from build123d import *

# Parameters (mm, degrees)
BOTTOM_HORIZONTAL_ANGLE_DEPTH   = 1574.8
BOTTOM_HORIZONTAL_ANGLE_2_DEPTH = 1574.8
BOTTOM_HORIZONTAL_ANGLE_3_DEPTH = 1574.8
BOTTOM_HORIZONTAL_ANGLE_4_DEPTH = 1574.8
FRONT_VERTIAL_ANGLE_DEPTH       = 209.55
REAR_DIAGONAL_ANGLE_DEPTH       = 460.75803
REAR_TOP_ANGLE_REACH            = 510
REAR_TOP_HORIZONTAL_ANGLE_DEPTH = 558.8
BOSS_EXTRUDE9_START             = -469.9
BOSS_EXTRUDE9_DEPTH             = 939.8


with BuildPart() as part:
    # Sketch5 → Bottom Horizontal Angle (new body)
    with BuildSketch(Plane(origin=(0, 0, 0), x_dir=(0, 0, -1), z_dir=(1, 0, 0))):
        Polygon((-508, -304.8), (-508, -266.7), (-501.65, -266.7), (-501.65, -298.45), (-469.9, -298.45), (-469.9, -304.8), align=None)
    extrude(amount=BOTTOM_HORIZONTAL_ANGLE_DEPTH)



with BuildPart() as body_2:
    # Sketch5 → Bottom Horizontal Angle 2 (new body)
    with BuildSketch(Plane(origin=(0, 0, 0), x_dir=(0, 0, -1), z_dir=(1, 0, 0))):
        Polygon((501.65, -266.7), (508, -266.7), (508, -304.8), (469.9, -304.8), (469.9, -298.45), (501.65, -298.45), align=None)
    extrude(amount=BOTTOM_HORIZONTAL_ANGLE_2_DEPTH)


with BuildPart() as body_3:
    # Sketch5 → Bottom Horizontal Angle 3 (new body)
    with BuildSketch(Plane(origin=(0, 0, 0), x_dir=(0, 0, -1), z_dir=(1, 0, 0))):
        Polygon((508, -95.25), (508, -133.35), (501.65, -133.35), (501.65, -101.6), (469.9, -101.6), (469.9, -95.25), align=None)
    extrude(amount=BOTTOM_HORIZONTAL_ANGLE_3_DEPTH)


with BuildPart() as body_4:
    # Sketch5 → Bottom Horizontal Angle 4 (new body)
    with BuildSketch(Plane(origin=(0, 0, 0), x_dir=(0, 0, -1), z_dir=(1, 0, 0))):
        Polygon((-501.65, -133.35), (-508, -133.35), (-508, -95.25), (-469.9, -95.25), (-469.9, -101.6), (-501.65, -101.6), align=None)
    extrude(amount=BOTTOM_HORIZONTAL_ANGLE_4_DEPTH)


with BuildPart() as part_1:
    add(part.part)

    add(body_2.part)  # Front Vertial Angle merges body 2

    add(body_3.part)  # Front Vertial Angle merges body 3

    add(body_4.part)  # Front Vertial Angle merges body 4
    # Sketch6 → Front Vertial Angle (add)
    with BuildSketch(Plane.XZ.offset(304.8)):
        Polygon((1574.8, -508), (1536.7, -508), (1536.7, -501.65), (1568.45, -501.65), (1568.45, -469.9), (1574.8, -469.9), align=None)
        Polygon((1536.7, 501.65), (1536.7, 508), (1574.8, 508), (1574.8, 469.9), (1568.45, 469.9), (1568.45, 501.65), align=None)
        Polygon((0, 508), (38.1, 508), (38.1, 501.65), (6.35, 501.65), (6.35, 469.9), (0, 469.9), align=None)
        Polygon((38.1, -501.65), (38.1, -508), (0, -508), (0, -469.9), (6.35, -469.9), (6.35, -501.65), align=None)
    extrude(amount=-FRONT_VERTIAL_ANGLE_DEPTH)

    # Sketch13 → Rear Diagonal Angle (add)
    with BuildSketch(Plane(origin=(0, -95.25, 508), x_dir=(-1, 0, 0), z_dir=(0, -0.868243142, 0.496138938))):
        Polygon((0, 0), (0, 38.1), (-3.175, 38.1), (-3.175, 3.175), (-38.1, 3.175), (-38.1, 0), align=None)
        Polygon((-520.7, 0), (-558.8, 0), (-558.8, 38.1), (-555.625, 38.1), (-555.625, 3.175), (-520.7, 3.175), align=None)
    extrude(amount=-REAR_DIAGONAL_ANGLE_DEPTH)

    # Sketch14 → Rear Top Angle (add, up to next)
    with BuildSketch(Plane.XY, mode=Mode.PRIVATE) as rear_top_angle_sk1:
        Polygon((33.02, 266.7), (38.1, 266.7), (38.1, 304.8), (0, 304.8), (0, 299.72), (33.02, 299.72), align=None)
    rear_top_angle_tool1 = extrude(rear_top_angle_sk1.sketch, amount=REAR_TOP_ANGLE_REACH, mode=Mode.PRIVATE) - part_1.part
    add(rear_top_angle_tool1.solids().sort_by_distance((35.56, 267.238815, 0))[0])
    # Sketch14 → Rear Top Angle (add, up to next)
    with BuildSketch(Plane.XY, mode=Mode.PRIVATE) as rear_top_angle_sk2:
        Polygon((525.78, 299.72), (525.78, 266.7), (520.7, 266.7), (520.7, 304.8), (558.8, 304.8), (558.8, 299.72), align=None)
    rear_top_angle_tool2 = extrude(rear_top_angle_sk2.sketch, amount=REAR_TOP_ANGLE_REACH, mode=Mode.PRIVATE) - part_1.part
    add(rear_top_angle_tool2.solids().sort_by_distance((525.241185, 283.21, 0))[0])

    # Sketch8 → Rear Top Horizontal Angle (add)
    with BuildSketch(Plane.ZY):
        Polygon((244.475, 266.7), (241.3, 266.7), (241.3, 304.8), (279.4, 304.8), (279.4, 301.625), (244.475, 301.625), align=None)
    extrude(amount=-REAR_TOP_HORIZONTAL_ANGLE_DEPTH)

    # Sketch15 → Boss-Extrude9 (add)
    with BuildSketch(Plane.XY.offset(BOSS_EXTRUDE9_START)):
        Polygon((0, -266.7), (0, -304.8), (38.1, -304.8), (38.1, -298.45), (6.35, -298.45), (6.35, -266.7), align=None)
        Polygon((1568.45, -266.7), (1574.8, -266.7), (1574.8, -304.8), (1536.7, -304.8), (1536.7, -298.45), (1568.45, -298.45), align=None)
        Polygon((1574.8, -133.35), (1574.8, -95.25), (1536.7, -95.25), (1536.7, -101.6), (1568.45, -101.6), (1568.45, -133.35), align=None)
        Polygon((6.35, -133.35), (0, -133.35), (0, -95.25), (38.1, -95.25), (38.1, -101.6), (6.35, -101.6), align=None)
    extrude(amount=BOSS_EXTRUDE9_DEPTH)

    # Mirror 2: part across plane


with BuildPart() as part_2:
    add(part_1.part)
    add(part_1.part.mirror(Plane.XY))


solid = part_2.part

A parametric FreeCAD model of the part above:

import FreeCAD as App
import Part
import Sketcher
Q = App.Units.Quantity


def add_polygon(sketch, points):
    """Adds a closed chain of lines whose ends are joined by coincident constraints."""
    first, n = sketch.GeometryCount, len(points)
    for a, b in zip(points, points[1:] + points[:1]):
        sketch.addGeometry(Part.LineSegment(App.Vector(*a, 0), App.Vector(*b, 0)), False)
    for i in range(n):
        sketch.addConstraint(Sketcher.Constraint("Coincident", first + i, 2, first + (i + 1) % n, 1))

doc = App.newDocument("Part")
body = doc.addObject("PartDesign::Body", "Body")

# Sketch on YZ plane
sketch1 = body.newObject("Sketcher::SketchObject", "Sketch")
sketch1.AttachmentSupport = (doc.getObject("YZ_Plane"), [""])
sketch1.MapMode = "FlatFace"
add_polygon(sketch1, [(-267, 508), (-305, 508), (-305, 470), (-298, 470), (-298, 502), (-267, 502)])  # lines 0-5
sketch1.addConstraint([
    Sketcher.Constraint("Horizontal", 0),
    Sketcher.Constraint("Vertical", 1),
    Sketcher.Constraint("Horizontal", 2),
    Sketcher.Constraint("Vertical", 3),
    Sketcher.Constraint("Horizontal", 4),
    Sketcher.Constraint("Vertical", 5),
    Sketcher.Constraint("Equal", 0, 1),
    Sketcher.Constraint("Equal", 4, 3),
    Sketcher.Constraint("DistanceX", 0, 2, 0, 1, Q("1.5 in")),
    Sketcher.Constraint("DistanceX", 0, 2, -1, 1, Q("12 in")),
    Sketcher.Constraint("DistanceY", -1, 1, 0, 2, Q("20 in")),
    Sketcher.Constraint("DistanceX", 2, 1, 2, 2, Q("0.25 in")),
])
pad1 = body.newObject("PartDesign::Pad", "Pad")
pad1.Profile = sketch1
pad1.Length = Q("62 in")
body2 = doc.addObject("PartDesign::Body", "Body001")

# Sketch on YZ plane
sketch2 = body2.newObject("Sketcher::SketchObject", "Sketch001")
sketch2.AttachmentSupport = (doc.getObject("YZ_Plane001"), [""])
sketch2.MapMode = "FlatFace"
add_polygon(sketch2, [(-267, -508), (-267, -502), (-298, -502), (-298, -470), (-305, -470), (-305, -508)])  # lines 0-5
sketch2.addConstraint([
    Sketcher.Constraint("Vertical", 0),
    Sketcher.Constraint("Horizontal", 1),
    Sketcher.Constraint("Vertical", 2),
    Sketcher.Constraint("Horizontal", 3),
    Sketcher.Constraint("Vertical", 4),
    Sketcher.Constraint("Horizontal", 5),
    Sketcher.Constraint("Equal", 3, 0),
    Sketcher.Constraint("Equal", 1, 2),
    Sketcher.Constraint("DistanceX", 5, 1, 5, 2, Q("1.5 in")),
    Sketcher.Constraint("DistanceX", 3, 2, -1, 1, Q("12 in")),
    Sketcher.Constraint("DistanceY", 4, 2, -1, 1, Q("20 in")),
    Sketcher.Constraint("DistanceX", 1, 2, 1, 1, Q("1.25 in")),
])
pad2 = body2.newObject("PartDesign::Pad", "Pad001")
pad2.Profile = sketch2
pad2.Length = Q("62 in")
body3 = doc.addObject("PartDesign::Body", "Body002")

# Sketch on YZ plane
sketch3 = body3.newObject("Sketcher::SketchObject", "Sketch002")
sketch3.AttachmentSupport = (doc.getObject("YZ_Plane002"), [""])
sketch3.MapMode = "FlatFace"
add_polygon(sketch3, [(-133, -508), (-95, -508), (-95, -470), (-102, -470), (-102, -502), (-133, -502)])  # lines 0-5
sketch3.addConstraint([
    Sketcher.Constraint("Horizontal", 0),
    Sketcher.Constraint("Vertical", 1),
    Sketcher.Constraint("Horizontal", 2),
    Sketcher.Constraint("Vertical", 3),
    Sketcher.Constraint("Horizontal", 4),
    Sketcher.Constraint("Vertical", 5),
    Sketcher.Constraint("Equal", 0, 1),
    Sketcher.Constraint("Equal", 4, 3),
    Sketcher.Constraint("DistanceX", 0, 1, 0, 2, Q("1.5 in")),
    Sketcher.Constraint("DistanceY", 0, 2, -1, 1, Q("20 in")),
    Sketcher.Constraint("DistanceX", 2, 2, -1, 1, Q("4 in")),
    Sketcher.Constraint("DistanceX", 2, 2, 2, 1, Q("0.25 in")),
])
pad3 = body3.newObject("PartDesign::Pad", "Pad002")
pad3.Profile = sketch3
pad3.Length = Q("62 in")
body4 = doc.addObject("PartDesign::Body", "Body003")

# Sketch on YZ plane
sketch4 = body4.newObject("Sketcher::SketchObject", "Sketch003")
sketch4.AttachmentSupport = (doc.getObject("YZ_Plane003"), [""])
sketch4.MapMode = "FlatFace"
add_polygon(sketch4, [(-133, 508), (-133, 502), (-102, 502), (-102, 470), (-95, 470), (-95, 508)])  # lines 0-5
sketch4.addConstraint([
    Sketcher.Constraint("Vertical", 0),
    Sketcher.Constraint("Horizontal", 1),
    Sketcher.Constraint("Vertical", 2),
    Sketcher.Constraint("Horizontal", 3),
    Sketcher.Constraint("Vertical", 4),
    Sketcher.Constraint("Horizontal", 5),
    Sketcher.Constraint("Equal", 3, 0),
    Sketcher.Constraint("Equal", 1, 2),
    Sketcher.Constraint("DistanceX", 5, 2, 5, 1, Q("1.5 in")),
    Sketcher.Constraint("DistanceX", 1, 2, -1, 1, Q("4 in")),
    Sketcher.Constraint("DistanceY", -1, 1, 4, 2, Q("20 in")),
    Sketcher.Constraint("DistanceX", 1, 1, 1, 2, Q("1.25 in")),
])
pad4 = body4.newObject("PartDesign::Pad", "Pad003")
pad4.Profile = sketch4
pad4.Length = Q("62 in")
body.AllowCompound = True
doc.recompute()

boolean = body.newObject("PartDesign::Boolean", "Boolean")
boolean.Type = "Fuse"
boolean.addObjects([body2])
doc.recompute()

boolean2 = body.newObject("PartDesign::Boolean", "Boolean001")
boolean2.Type = "Fuse"
boolean2.addObjects([body3])
doc.recompute()

boolean3 = body.newObject("PartDesign::Boolean", "Boolean002")
boolean3.Type = "Fuse"
boolean3.addObjects([body4])

# Sketch on XZ plane
sketch5 = body.newObject("Sketcher::SketchObject", "Sketch004")
sketch5.AttachmentSupport = (doc.getObject("XZ_Plane"), [""])
sketch5.MapMode = "FlatFace"
sketch5.AttachmentOffset = App.Placement(App.Vector(0, 0, 12 * 25.4), App.Rotation())
add_polygon(sketch5, [(1537, -508), (1575, -508), (1575, -470), (1568, -470), (1568, -502), (1537, -502)])  # lines 0-5
add_polygon(sketch5, [(1537, 508), (1537, 502), (1568, 502), (1568, 470), (1575, 470), (1575, 508)])  # lines 6-11
add_polygon(sketch5, [(38, 508), (0, 508), (0, 470), (6, 470), (6, 502), (38, 502)])  # lines 12-17
add_polygon(sketch5, [(38, -508), (38, -502), (6, -502), (6, -470), (0, -470), (0, -508)])  # lines 18-23
sketch5.addConstraint([
    Sketcher.Constraint("Horizontal", 0),
    Sketcher.Constraint("Vertical", 1),
    Sketcher.Constraint("Horizontal", 2),
    Sketcher.Constraint("Vertical", 3),
    Sketcher.Constraint("Horizontal", 4),
    Sketcher.Constraint("Vertical", 5),
    Sketcher.Constraint("Vertical", 6),
    Sketcher.Constraint("Horizontal", 7),
    Sketcher.Constraint("Vertical", 8),
    Sketcher.Constraint("Horizontal", 9),
    Sketcher.Constraint("Vertical", 10),
    Sketcher.Constraint("Horizontal", 11),
    Sketcher.Constraint("Horizontal", 12),
    Sketcher.Constraint("Vertical", 13),
    Sketcher.Constraint("Horizontal", 14),
    Sketcher.Constraint("Vertical", 15),
    Sketcher.Constraint("Horizontal", 16),
    Sketcher.Constraint("Vertical", 17),
    Sketcher.Constraint("Vertical", 18),
    Sketcher.Constraint("Horizontal", 19),
    Sketcher.Constraint("Vertical", 20),
    Sketcher.Constraint("Horizontal", 21),
    Sketcher.Constraint("Vertical", 22),
    Sketcher.Constraint("Horizontal", 23),
    Sketcher.Constraint("Symmetric", 13, 2, 21, 2, -1, 1),
    Sketcher.Constraint("Symmetric", 4, 2, 6, 2, -1),
    Sketcher.Constraint("Symmetric", 2, 2, 8, 2, -1),
    Sketcher.Constraint("Symmetric", 0, 2, 10, 2, -1),
    Sketcher.Constraint("Symmetric", 16, 2, 18, 2, -1),
    Sketcher.Constraint("Symmetric", 12, 2, 22, 2, -1),
    Sketcher.Constraint("Horizontal", 11, 2, 12, 2),
    Sketcher.Constraint("Horizontal", 9, 2, 13, 2),
    Sketcher.Constraint("Horizontal", 7, 2, 15, 2),
    Sketcher.Constraint("Vertical", 15, 2, 19, 2),
    Sketcher.Constraint("Equal", 11, 12),
    Sketcher.Constraint("Equal", 9, 14),
    Sketcher.Constraint("Equal", 23, 1),
    Sketcher.Constraint("Equal", 19, 3),
    Sketcher.Constraint("DistanceX", 0, 1, 0, 2, Q("1.5 in")),
    Sketcher.Constraint("DistanceX", -1, 1, 0, 2, Q("62 in")),
    Sketcher.Constraint("DistanceY", 0, 2, -1, 1, Q("20 in")),
    Sketcher.Constraint("DistanceX", 2, 2, 2, 1, Q("0.25 in")),
])
pad5 = body.newObject("PartDesign::Pad", "Pad004")
pad5.Profile = sketch5
pad5.Length = Q("8.25 in")
pad5.Reversed = True

# Sketch on an angled plane
sketch6 = body.newObject("Sketcher::SketchObject", "Sketch005")
sketch6.Placement = App.Placement(App.Vector(0, -95.25, 508), App.Rotation(App.Vector(-1, 0, 0), App.Vector(0, -0.496138938, -0.868243142), App.Vector(0, -0.868243142, 0.496138938), "ZXY"))
add_polygon(sketch6, [(0, 0), (0, 38.1), (-3.2, 38.1), (-3.2, 3.2), (-38.1, 3.2), (-38.1, 0)])  # lines 0-5
add_polygon(sketch6, [(-558.8, 0), (-520.7, 0), (-520.7, 3.2), (-555.6, 3.2), (-555.6, 38.1), (-558.8, 38.1)])  # lines 6-11
sketch6.addConstraint([
    Sketcher.Constraint("Vertical", 0),
    Sketcher.Constraint("Horizontal", 1),
    Sketcher.Constraint("Vertical", 2),
    Sketcher.Constraint("Horizontal", 3),
    Sketcher.Constraint("Vertical", 4),
    Sketcher.Constraint("Horizontal", 5),
    Sketcher.Constraint("Horizontal", 6),
    Sketcher.Constraint("Vertical", 7),
    Sketcher.Constraint("Horizontal", 8),
    Sketcher.Constraint("Vertical", 9),
    Sketcher.Constraint("Horizontal", 10),
    Sketcher.Constraint("Vertical", 11),
    Sketcher.Constraint("Coincident", 5, 2, -1, 1),
    Sketcher.Constraint("PointOnObject", 6, 2, -1),
    Sketcher.Constraint("Horizontal", 3, 2, 7, 2),
    Sketcher.Constraint("Horizontal", 1, 2, 9, 2),
    Sketcher.Constraint("Equal", 5, 6),
    Sketcher.Constraint("Equal", 3, 8),
    Sketcher.Constraint("Equal", 6, 0),
    Sketcher.Constraint("Equal", 8, 2),
    Sketcher.Constraint("DistanceX", 5, 1, 5, 2, Q("1.5 in")),
    Sketcher.Constraint("DistanceX", 10, 2, -1, 1, Q("22 in")),
    Sketcher.Constraint("DistanceX", 1, 2, 1, 1, Q("0.125 in")),
])
pad6 = body.newObject("PartDesign::Pad", "Pad005")
pad6.Profile = sketch6
pad6.Length = 460.75803
pad6.Reversed = True

# Sketch on XY plane
sketch7 = body.newObject("Sketcher::SketchObject", "Sketch006")
sketch7.AttachmentSupport = (doc.getObject("XY_Plane"), [""])
sketch7.MapMode = "FlatFace"
add_polygon(sketch7, [(33, 267), (38, 267), (38, 305), (0, 305), (0, 300), (33, 300)])  # lines 0-5
sketch7.addConstraint([
    Sketcher.Constraint("Horizontal", 0),
    Sketcher.Constraint("Vertical", 1),
    Sketcher.Constraint("Horizontal", 2),
    Sketcher.Constraint("Vertical", 3),
    Sketcher.Constraint("Horizontal", 4),
    Sketcher.Constraint("Vertical", 5),
    Sketcher.Constraint("PointOnObject", 2, 2, -2),
    Sketcher.Constraint("Equal", 2, 1),
    Sketcher.Constraint("Equal", 0, 3),
    Sketcher.Constraint("DistanceX", 0, 1, 0, 2, Q("0.2 in")),
    Sketcher.Constraint("DistanceX", 2, 2, 2, 1, Q("1.5 in")),
    Sketcher.Constraint("DistanceY", -1, 1, 1, 2, Q("12 in")),
])
pad7 = body.newObject("PartDesign::Pad", "Pad006")
pad7.Profile = sketch7
pad7.Type = "UpToFirst"

# Sketch on XY plane
sketch8 = body.newObject("Sketcher::SketchObject", "Sketch007")
sketch8.AttachmentSupport = (doc.getObject("XY_Plane"), [""])
sketch8.MapMode = "FlatFace"
add_polygon(sketch8, [(526, 267), (526, 300), (559, 300), (559, 305), (521, 305), (521, 267)])  # lines 0-5
sketch8.addConstraint([
    Sketcher.Constraint("Vertical", 0),
    Sketcher.Constraint("Horizontal", 1),
    Sketcher.Constraint("Vertical", 2),
    Sketcher.Constraint("Horizontal", 3),
    Sketcher.Constraint("Vertical", 4),
    Sketcher.Constraint("Horizontal", 5),
    Sketcher.Constraint("Equal", 1, 0),
    Sketcher.Constraint("Equal", 5, 2),
    Sketcher.Constraint("DistanceX", 1, 1, 1, 2, Q("1.3 in")),
    Sketcher.Constraint("DistanceX", 3, 2, 3, 1, Q("1.5 in")),
    Sketcher.Constraint("DistanceX", -1, 1, 1, 2, Q("22 in")),
    Sketcher.Constraint("DistanceY", -1, 1, 2, 2, Q("12 in")),
])
pad8 = body.newObject("PartDesign::Pad", "Pad007")
pad8.Profile = sketch8
pad8.Type = "UpToFirst"

# Sketch on YZ plane
sketch9 = body.newObject("Sketcher::SketchObject", "Sketch008")
sketch9.AttachmentSupport = (doc.getObject("YZ_Plane"), [""])
sketch9.MapMode = "FlatFace"
add_polygon(sketch9, [(266.7, 241.3), (266.7, 244.5), (301.6, 244.5), (301.6, 279.4), (304.8, 279.4), (304.8, 241.3)])  # lines 0-5
sketch9.addConstraint([
    Sketcher.Constraint("Vertical", 0),
    Sketcher.Constraint("Horizontal", 1),
    Sketcher.Constraint("Vertical", 2),
    Sketcher.Constraint("Horizontal", 3),
    Sketcher.Constraint("Vertical", 4),
    Sketcher.Constraint("Horizontal", 5),
    Sketcher.Constraint("Equal", 3, 0),
    Sketcher.Constraint("Equal", 1, 2),
    Sketcher.Constraint("DistanceX", 5, 2, 5, 1, Q("1.5 in")),
    Sketcher.Constraint("DistanceY", -1, 1, 2, 2, Q("11 in")),
    Sketcher.Constraint("DistanceX", -1, 1, 3, 2, Q("12 in")),
    Sketcher.Constraint("DistanceX", 1, 1, 1, 2, Q("1.375 in")),
])
pad9 = body.newObject("PartDesign::Pad", "Pad008")
pad9.Profile = sketch9
pad9.Length = Q("22 in")

# Sketch on XY plane
sketch10 = body.newObject("Sketcher::SketchObject", "Sketch009")
sketch10.AttachmentSupport = (doc.getObject("XY_Plane"), [""])
sketch10.MapMode = "FlatFace"
sketch10.AttachmentOffset = App.Placement(App.Vector(0, 0, -18.5 * 25.4), App.Rotation())
add_polygon(sketch10, [(0, -267), (0, -305), (38, -305), (38, -298), (6, -298), (6, -267)])  # lines 0-5
add_polygon(sketch10, [(1575, -267), (1568, -267), (1568, -298), (1537, -298), (1537, -305), (1575, -305)])  # lines 6-11
add_polygon(sketch10, [(1575, -133), (1575, -95), (1537, -95), (1537, -102), (1568, -102), (1568, -133)])  # lines 12-17
add_polygon(sketch10, [(0, -133), (6, -133), (6, -102), (38, -102), (38, -95), (0, -95)])  # lines 18-23
sketch10.addConstraint([
    Sketcher.Constraint("Vertical", 0),
    Sketcher.Constraint("Horizontal", 1),
    Sketcher.Constraint("Vertical", 2),
    Sketcher.Constraint("Horizontal", 3),
    Sketcher.Constraint("Vertical", 4),
    Sketcher.Constraint("Horizontal", 5),
    Sketcher.Constraint("Horizontal", 6),
    Sketcher.Constraint("Vertical", 7),
    Sketcher.Constraint("Horizontal", 8),
    Sketcher.Constraint("Vertical", 9),
    Sketcher.Constraint("Horizontal", 10),
    Sketcher.Constraint("Vertical", 11),
    Sketcher.Constraint("Vertical", 12),
    Sketcher.Constraint("Horizontal", 13),
    Sketcher.Constraint("Vertical", 14),
    Sketcher.Constraint("Horizontal", 15),
    Sketcher.Constraint("Vertical", 16),
    Sketcher.Constraint("Horizontal", 17),
    Sketcher.Constraint("Horizontal", 18),
    Sketcher.Constraint("Vertical", 19),
    Sketcher.Constraint("Horizontal", 20),
    Sketcher.Constraint("Vertical", 21),
    Sketcher.Constraint("Horizontal", 22),
    Sketcher.Constraint("Vertical", 23),
    Sketcher.Constraint("PointOnObject", 0, 2, -2),
    Sketcher.Constraint("PointOnObject", 22, 2, -2),
    Sketcher.Constraint("Horizontal", 5, 2, 6, 2),
    Sketcher.Constraint("Horizontal", 3, 2, 7, 2),
    Sketcher.Constraint("Horizontal", 1, 2, 9, 2),
    Sketcher.Constraint("Horizontal", 17, 2, 18, 2),
    Sketcher.Constraint("Horizontal", 15, 2, 19, 2),
    Sketcher.Constraint("Horizontal", 13, 2, 21, 2),
    Sketcher.Constraint("Vertical", 11, 2, 12, 2),
    Sketcher.Constraint("Vertical", 9, 2, 13, 2),
    Sketcher.Constraint("Vertical", 7, 2, 15, 2),
    Sketcher.Constraint("Vertical", 4, 2, 18, 2),
    Sketcher.Constraint("Vertical", 2, 2, 20, 2),
    Sketcher.Constraint("Equal", 5, 6),
    Sketcher.Constraint("Equal", 3, 8),
    Sketcher.Constraint("Equal", 22, 0),
    Sketcher.Constraint("Equal", 18, 2),
    Sketcher.Constraint("Equal", 11, 12),
    Sketcher.Constraint("Equal", 9, 14),
    Sketcher.Constraint("DistanceX", 1, 1, 1, 2, Q("1.5 in")),
    Sketcher.Constraint("DistanceY", 0, 2, -1, 1, Q("12 in")),
    Sketcher.Constraint("DistanceX", -1, 1, 10, 2, Q("62 in")),
    Sketcher.Constraint("DistanceY", 14, 2, -1, 1, Q("4 in")),
    Sketcher.Constraint("DistanceX", 3, 2, 3, 1, Q("1.25 in")),
])
pad10 = body.newObject("PartDesign::Pad", "Pad009")
pad10.Profile = sketch10
pad10.Length = Q("37 in")
body5 = doc.addObject("PartDesign::Body", "Body004")
doc.recompute()

body5.BaseFeature = body
doc.recompute()

mirroring = doc.addObject("Part::Mirroring", "Mirroring")
mirroring.Source = body
mirroring.Base = App.Vector(0, 0, 0)
mirroring.Normal = App.Vector(0, 0, 1)
body6 = doc.addObject("PartDesign::Body", "Body005")
body6.BaseFeature = mirroring
boolean4 = body5.newObject("PartDesign::Boolean", "Boolean003")
boolean4.Type = "Fuse"
boolean4.addObjects([body6])
doc.recompute()
mirroring.Visibility = False

doc.recompute()
